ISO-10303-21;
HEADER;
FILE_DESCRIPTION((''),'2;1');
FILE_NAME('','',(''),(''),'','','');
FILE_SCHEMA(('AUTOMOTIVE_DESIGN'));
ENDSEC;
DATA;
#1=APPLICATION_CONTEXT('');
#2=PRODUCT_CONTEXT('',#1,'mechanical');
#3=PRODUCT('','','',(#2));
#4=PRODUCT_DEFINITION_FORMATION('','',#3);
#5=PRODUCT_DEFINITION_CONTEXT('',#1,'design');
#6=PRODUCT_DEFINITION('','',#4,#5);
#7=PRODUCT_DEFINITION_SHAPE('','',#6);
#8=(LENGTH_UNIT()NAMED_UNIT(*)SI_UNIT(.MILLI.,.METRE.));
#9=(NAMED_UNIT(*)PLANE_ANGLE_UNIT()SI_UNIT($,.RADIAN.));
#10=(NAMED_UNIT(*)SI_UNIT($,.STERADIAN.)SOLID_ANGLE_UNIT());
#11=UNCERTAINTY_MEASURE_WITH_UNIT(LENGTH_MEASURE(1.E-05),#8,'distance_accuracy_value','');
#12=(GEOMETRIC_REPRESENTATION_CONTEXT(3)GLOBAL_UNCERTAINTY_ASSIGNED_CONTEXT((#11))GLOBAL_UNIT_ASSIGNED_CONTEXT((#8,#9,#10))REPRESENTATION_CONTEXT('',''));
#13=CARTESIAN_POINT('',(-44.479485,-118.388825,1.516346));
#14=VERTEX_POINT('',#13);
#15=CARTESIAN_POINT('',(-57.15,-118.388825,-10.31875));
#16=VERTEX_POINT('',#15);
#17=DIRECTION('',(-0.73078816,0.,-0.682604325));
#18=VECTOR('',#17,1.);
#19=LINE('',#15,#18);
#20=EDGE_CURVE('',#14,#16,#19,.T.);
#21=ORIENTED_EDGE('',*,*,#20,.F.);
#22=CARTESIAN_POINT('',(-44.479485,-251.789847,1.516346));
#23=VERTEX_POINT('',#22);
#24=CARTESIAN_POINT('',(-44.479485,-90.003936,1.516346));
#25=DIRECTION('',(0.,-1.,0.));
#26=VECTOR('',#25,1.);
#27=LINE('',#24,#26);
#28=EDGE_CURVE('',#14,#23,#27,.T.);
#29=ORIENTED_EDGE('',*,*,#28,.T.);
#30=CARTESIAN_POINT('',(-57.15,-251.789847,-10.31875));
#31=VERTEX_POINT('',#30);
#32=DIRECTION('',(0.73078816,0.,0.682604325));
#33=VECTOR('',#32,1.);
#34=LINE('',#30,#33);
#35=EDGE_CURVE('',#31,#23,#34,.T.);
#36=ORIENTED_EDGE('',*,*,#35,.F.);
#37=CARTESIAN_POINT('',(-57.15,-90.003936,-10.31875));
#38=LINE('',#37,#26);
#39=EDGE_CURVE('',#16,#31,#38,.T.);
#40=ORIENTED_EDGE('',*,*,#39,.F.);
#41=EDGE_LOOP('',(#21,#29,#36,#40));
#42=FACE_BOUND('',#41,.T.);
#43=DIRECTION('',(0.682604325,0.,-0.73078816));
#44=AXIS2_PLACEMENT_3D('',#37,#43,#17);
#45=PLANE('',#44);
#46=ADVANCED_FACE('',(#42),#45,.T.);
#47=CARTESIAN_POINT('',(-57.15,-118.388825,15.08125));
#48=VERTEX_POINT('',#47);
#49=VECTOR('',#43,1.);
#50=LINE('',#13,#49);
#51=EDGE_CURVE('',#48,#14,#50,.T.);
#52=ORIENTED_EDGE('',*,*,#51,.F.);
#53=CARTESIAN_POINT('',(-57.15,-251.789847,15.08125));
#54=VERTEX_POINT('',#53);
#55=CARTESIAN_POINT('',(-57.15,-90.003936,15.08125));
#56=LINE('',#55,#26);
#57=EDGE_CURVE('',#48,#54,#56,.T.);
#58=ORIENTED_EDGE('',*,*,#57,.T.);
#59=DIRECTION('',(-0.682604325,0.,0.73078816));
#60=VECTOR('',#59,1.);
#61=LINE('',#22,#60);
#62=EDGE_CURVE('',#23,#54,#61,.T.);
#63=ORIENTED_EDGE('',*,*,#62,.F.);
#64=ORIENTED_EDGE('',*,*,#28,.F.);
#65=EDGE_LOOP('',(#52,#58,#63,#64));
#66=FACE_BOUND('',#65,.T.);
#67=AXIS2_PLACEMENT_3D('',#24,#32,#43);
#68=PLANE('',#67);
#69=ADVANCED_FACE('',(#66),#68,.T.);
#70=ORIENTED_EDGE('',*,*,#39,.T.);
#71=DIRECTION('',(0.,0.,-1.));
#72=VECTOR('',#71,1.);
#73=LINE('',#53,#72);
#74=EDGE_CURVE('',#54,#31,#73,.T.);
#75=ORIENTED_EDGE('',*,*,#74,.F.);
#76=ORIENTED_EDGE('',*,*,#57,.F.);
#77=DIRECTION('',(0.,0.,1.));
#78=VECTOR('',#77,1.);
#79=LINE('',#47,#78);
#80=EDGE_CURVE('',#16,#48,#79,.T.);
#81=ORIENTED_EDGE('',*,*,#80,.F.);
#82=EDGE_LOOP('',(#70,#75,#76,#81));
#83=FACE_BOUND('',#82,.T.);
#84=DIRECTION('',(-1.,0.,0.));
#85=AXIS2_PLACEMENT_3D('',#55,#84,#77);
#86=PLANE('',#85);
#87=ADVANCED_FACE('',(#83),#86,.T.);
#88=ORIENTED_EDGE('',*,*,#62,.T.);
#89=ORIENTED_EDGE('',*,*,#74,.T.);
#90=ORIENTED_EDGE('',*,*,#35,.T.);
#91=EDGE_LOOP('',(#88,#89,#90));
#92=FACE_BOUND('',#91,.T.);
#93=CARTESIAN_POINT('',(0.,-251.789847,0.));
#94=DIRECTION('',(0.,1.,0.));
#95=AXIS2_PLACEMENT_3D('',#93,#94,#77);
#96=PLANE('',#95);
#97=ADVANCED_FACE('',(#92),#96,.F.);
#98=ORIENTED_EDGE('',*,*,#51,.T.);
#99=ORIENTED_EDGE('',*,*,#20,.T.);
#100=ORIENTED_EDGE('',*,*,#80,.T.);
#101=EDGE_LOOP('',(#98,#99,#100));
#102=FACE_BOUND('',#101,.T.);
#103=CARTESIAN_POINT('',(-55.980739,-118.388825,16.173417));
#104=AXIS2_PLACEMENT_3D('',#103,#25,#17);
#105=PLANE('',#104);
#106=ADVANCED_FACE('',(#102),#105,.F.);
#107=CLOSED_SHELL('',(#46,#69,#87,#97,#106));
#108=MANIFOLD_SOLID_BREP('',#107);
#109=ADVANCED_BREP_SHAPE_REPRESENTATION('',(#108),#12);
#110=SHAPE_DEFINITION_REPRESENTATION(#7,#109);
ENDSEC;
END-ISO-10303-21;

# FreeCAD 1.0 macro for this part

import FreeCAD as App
import Part
import Sketcher

V = App.Vector
Q = App.Units.Quantity

doc = App.newDocument("Part")
params = doc.addObject("Spreadsheet::Sheet", "Params")
for row, (alias, value) in enumerate([
    ("sketch1_height", "1 in"),
    ("pad1_length", "133.401022 mm"),
], start=1):
    params.set(f"A{row}", alias)
    params.set(f"B{row}", "=" + value)
    params.setAlias(f"B{row}", alias)

body = doc.addObject("PartDesign::Body", "Body")

# Sketch on XZ plane
sketch1 = body.newObject("Sketcher::SketchObject", "Sketch")
sketch1.AttachmentSupport = (doc.getObject("XZ_Plane"), [""])
sketch1.MapMode = "FlatFace"
sketch1.AttachmentOffset = App.Placement(V(0, 0, 251.789847), App.Rotation())
sketch1.addGeometry([
    Part.LineSegment(V(-57, 15, 0), V(-57, -10, 0)),
    Part.LineSegment(V(-57, -10, 0), V(-44, 2, 0)),
    Part.LineSegment(V(-44, 2, 0), V(-57, 15, 0)),
], False)
sketch1.addConstraint([
    Sketcher.Constraint("Coincident", 0, 2, 1, 1),
    Sketcher.Constraint("Coincident", 1, 2, 2, 1),
    Sketcher.Constraint("Coincident", 2, 2, 0, 1),
    Sketcher.Constraint("Vertical", 0),
    Sketcher.Constraint("Perpendicular", 1, 2),
    Sketcher.Constraint("DistanceY", 0, 2, 0, 1, Q("1 in")),
    Sketcher.Constraint("DistanceX", 0, 2, -1, 1, Q("2.25 in")),
    Sketcher.Constraint("DistanceY", 0, 2, -1, 1, Q("0.40625 in")),
    Sketcher.Constraint("Distance", 1, Q("17.33815 mm")),
])
sketch1.setExpression("Constraints[5]", "Params.sketch1_height")
pad1 = body.newObject("PartDesign::Pad", "Pad")
pad1.Profile = sketch1
pad1.setExpression("Length", "Params.pad1_length")
pad1.Reversed = True

doc.recompute()
